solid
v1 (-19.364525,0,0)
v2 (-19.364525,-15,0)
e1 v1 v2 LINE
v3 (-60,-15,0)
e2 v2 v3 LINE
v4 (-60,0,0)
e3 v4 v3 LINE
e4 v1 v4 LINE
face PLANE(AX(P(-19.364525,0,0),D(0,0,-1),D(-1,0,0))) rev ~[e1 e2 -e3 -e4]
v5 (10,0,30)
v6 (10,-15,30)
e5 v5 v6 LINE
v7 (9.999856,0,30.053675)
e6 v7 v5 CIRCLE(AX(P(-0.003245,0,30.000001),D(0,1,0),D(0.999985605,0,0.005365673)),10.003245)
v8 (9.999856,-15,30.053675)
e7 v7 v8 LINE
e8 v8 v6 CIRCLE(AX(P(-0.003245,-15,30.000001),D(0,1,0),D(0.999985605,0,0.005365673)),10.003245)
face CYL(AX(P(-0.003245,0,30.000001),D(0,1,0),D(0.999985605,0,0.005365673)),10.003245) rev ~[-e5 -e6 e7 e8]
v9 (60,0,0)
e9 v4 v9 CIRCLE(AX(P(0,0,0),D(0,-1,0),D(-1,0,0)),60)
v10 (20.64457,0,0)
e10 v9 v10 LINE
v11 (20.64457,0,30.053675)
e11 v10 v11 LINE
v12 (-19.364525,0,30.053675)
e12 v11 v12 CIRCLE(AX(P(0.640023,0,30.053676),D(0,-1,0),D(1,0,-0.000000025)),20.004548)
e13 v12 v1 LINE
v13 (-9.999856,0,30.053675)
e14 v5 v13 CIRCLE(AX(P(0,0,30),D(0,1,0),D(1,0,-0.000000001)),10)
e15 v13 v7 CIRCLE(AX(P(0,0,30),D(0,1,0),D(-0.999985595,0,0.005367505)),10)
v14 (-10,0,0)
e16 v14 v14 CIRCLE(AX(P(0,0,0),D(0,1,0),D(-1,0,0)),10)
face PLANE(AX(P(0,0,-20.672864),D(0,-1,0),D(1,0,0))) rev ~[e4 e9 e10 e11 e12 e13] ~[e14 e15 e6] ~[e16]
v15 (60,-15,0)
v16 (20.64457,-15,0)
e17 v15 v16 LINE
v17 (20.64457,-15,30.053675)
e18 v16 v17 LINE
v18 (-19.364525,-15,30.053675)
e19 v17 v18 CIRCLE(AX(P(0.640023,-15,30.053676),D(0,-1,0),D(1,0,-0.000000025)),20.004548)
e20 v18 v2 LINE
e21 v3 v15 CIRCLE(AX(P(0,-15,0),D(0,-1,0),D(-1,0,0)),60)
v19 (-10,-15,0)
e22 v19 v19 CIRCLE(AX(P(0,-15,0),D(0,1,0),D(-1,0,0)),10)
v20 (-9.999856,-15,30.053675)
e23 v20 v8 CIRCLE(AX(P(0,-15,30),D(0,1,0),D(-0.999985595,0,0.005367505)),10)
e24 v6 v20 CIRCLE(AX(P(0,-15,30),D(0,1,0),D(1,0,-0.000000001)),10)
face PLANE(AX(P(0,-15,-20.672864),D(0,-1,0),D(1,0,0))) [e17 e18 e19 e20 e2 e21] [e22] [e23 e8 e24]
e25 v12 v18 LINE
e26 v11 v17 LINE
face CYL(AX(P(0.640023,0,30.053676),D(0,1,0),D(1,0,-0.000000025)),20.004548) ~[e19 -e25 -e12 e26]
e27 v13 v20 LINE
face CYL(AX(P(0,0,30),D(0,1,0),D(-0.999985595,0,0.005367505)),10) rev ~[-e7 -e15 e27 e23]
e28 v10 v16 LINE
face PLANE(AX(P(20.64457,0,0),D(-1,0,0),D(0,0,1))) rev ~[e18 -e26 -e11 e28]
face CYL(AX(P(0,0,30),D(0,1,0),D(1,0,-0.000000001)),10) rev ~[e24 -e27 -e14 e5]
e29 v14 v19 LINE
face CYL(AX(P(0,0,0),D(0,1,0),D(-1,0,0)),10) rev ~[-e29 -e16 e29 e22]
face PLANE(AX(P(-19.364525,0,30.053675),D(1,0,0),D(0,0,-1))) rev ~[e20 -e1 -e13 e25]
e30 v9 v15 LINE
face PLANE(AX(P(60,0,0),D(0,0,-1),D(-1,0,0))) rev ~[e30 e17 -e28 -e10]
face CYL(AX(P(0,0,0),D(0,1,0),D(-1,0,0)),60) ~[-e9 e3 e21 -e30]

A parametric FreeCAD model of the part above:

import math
import FreeCAD as App
import Part
import Sketcher

V = App.Vector
Q = App.Units.Quantity

doc = App.newDocument("Part")
body = doc.addObject("PartDesign::Body", "Body")

# Sketch on XZ plane
sketch1 = body.newObject("Sketcher::SketchObject", "Sketch")
sketch1.AttachmentSupport = (doc.getObject("XZ_Plane"), [""])
sketch1.MapMode = "FlatFace"
sketch1.addGeometry([
    Part.ArcOfCircle(Part.Circle(V(0, 0, 0), V(0, 0, 1), 60), math.radians(180), math.radians(360)),  # 0
    Part.LineSegment(V(60, 0, 0), V(20.64, 0, 0)),  # 1
    Part.LineSegment(V(20.64, 0, 0), V(20.64, 30.05, 0)),  # 2
    Part.ArcOfCircle(Part.Circle(V(0.64, 30.05, 0), V(0, 0, 1), 20), math.radians(0), math.radians(180)),  # 3
    Part.LineSegment(V(-19.36, 30.05, 0), V(-19.36, 0, 0)),  # 4
    Part.LineSegment(V(-19.36, 0, 0), V(-60, 0, 0)),  # 5
    Part.ArcOfCircle(Part.Circle(V(0, 30, 0), V(0, 0, 1), 10), math.radians(0), math.radians(0.31)),  # 6
    Part.ArcOfCircle(Part.Circle(V(0, 30, 0), V(0, 0, 1), 10), math.radians(180), math.radians(360)),  # 7
    Part.ArcOfCircle(Part.Circle(V(0, 30, 0), V(0, 0, 1), 10), math.radians(0), math.radians(180)),  # 8
    Part.Circle(V(0, 0, 0), V(0, 0, 1), 10),  # 9
], False)
sketch1.addConstraint([
    Sketcher.Constraint("Coincident", 0, 2, 1, 1),
    Sketcher.Constraint("Coincident", 1, 2, 2, 1),
    Sketcher.Constraint("Tangent", 2, 2, 3, 1),
    Sketcher.Constraint("Tangent", 3, 2, 4, 1),
    Sketcher.Constraint("Coincident", 4, 2, 5, 1),
    Sketcher.Constraint("Coincident", 5, 2, 0, 1),
    Sketcher.Constraint("Tangent", 6, 1, 7, 2),
    Sketcher.Constraint("Tangent", 7, 1, 8, 2),
    Sketcher.Constraint("Coincident", 8, 1, 6, 2),
    Sketcher.Constraint("Horizontal", 1),
    Sketcher.Constraint("Vertical", 2),
    Sketcher.Constraint("Vertical", 4),
    Sketcher.Constraint("Horizontal", 5),
    Sketcher.Constraint("Coincident", 0, 3, -1, 1),
    Sketcher.Constraint("Coincident", 9, 3, -1, 1),
    Sketcher.Constraint("Equal", 8, 9),
    Sketcher.Constraint("Symmetric", 7, 1, 8, 1, -2),
    Sketcher.Constraint("PointOnObject", 0, 2, -1),
    Sketcher.Constraint("PointOnObject", 4, 2, -1),
    Sketcher.Constraint("Horizontal", 8, 3, 6, 1),
    Sketcher.Constraint("Horizontal", 3, 2, 7, 1),
    Sketcher.Constraint("Diameter", 9, Q("20 mm")),
    Sketcher.Constraint("Radius", 0, Q("60 mm")),
    Sketcher.Constraint("DistanceY", -1, 1, 6, 3, Q("30.000001 mm")),
    Sketcher.Constraint("Radius", 3, Q("20.004548 mm")),
    Sketcher.Constraint("Radius", 6, Q("10.003245 mm")),
    Sketcher.Constraint("DistanceX", 1, 2, 1, 1, Q("39.35543 mm")),
    Sketcher.Constraint("DistanceY", 2, 1, 2, 2, Q("30.053675 mm")),
])
pad1 = body.newObject("PartDesign::Pad", "Pad")
pad1.Profile = sketch1
pad1.Length = 15

doc.recompute()
